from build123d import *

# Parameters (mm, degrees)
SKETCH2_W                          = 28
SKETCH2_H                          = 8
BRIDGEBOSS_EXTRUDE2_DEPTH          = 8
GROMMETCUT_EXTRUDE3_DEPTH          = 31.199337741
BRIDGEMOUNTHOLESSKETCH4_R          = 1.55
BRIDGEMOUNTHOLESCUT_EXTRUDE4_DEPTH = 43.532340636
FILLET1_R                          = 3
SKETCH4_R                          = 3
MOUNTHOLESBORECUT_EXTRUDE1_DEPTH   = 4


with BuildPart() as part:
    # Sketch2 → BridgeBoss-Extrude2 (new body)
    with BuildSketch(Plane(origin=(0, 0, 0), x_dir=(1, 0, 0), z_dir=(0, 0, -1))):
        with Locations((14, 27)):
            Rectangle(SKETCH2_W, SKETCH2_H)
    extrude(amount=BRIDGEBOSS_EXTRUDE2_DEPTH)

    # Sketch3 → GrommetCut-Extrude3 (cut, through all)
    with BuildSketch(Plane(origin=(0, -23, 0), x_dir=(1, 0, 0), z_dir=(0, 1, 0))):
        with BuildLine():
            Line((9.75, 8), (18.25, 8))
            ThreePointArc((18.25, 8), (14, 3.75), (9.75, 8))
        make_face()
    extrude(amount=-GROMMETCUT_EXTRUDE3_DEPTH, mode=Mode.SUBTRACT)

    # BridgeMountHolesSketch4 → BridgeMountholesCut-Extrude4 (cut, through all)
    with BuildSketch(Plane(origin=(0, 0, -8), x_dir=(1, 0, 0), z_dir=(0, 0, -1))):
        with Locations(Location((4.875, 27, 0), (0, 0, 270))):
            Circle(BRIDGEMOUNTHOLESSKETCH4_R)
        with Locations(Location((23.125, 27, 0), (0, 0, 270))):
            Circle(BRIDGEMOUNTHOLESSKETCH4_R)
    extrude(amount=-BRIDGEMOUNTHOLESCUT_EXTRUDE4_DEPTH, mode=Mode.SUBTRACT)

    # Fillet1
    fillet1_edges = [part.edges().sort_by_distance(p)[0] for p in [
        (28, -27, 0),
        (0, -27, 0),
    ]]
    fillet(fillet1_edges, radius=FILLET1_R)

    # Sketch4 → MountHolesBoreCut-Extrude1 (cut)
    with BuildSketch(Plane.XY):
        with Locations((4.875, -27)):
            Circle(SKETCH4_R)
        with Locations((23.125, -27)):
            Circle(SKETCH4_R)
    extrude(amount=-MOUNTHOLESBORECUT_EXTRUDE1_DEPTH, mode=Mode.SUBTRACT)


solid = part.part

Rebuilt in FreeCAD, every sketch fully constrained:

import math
import FreeCAD as App
import Part
import Sketcher
from FreeCAD import Vector


def edges_at(feature, points):
    """Names of the edges that pass closest to the given points."""
    edges = feature.Shape.Edges
    near = lambda p: min(range(len(edges)), key=lambda i: edges[i].distToShape(Part.Vertex(*p))[0])
    return sorted({f"Edge{near(p) + 1}" for p in points})


def add_polygon(sketch, points):
    """Adds a closed chain of lines whose ends are joined by coincident constraints."""
    first, n = sketch.GeometryCount, len(points)
    for a, b in zip(points, points[1:] + points[:1]):
        sketch.addGeometry(Part.LineSegment(App.Vector(*a, 0), App.Vector(*b, 0)), False)
    for i in range(n):
        sketch.addConstraint(Sketcher.Constraint("Coincident", first + i, 2, first + (i + 1) % n, 1))

doc = App.newDocument("Part")
params = doc.addObject("Spreadsheet::Sheet", "Params")
for row, (alias, value) in enumerate([
    ("sketch1_width", "28 mm"),
    ("sketch1_height", "8 mm"),
    ("pad1_length", "8 mm"),
    ("sketch2_radius", "4.25 mm"),
    ("sketch3_diameter", "3.1 mm"),
    ("fillet_radius", "3 mm"),
    ("sketch4_diameter", "6 mm"),
    ("pocket3_length", "4 mm"),
], start=1):
    params.set(f"A{row}", alias)
    params.set(f"B{row}", "=" + value)
    params.setAlias(f"B{row}", alias)

body = doc.addObject("PartDesign::Body", "Body")

sketch1 = doc.addObject("Sketcher::SketchObject", "Sketch")
body.addObject(sketch1)
sketch1.AttachmentSupport = (doc.XY_Plane, [""])
sketch1.MapMode = "FlatFace"
add_polygon(sketch1, [(0, -31), (0, -23), (28, -23), (28, -31)])
sketch1.addConstraint(Sketcher.Constraint("Vertical", 0))
sketch1.addConstraint(Sketcher.Constraint("Horizontal", 1))
sketch1.addConstraint(Sketcher.Constraint("Vertical", 2))
sketch1.addConstraint(Sketcher.Constraint("Horizontal", 3))
sketch1.addConstraint(Sketcher.Constraint("PointOnObject", 0, 2, -2))
sketch1.addConstraint(Sketcher.Constraint("DistanceX", 1, 1, 1, 2, 28.0))
sketch1.addConstraint(Sketcher.Constraint("DistanceY", 0, 1, 0, 2, 8.0))
sketch1.addConstraint(Sketcher.Constraint("DistanceY", 0, 2, -1, 1, 23.0))
sketch1.setExpression("Constraints[9]", "Params.sketch1_width")
sketch1.setExpression("Constraints[10]", "Params.sketch1_height")
pad1 = doc.addObject("PartDesign::Pad", "Pad")
body.addObject(pad1)
pad1.Profile = sketch1
pad1.setExpression("Length", "Params.pad1_length")
pad1.Reversed = True

sketch2 = doc.addObject("Sketcher::SketchObject", "Sketch001")
body.addObject(sketch2)
sketch2.AttachmentSupport = (doc.XZ_Plane, [""])
sketch2.MapMode = "FlatFace"
sketch2.AttachmentOffset = App.Placement(Vector(0, 0, 23), App.Rotation())
sketch2.addGeometry(Part.LineSegment(Vector(18.2, -8, 0), Vector(9.8, -8, 0)), False)
sketch2.addGeometry(Part.ArcOfCircle(Part.Circle(Vector(14, -8, 0), Vector(0, 0, 1), 4.2), math.radians(0), math.radians(180)), False)
sketch2.addConstraint(Sketcher.Constraint("Coincident", 0, 1, 1, 1))
sketch2.addConstraint(Sketcher.Constraint("Coincident", 1, 2, 0, 2))
sketch2.addConstraint(Sketcher.Constraint("Horizontal", 0))
sketch2.addConstraint(Sketcher.Constraint("Horizontal", 1, 3, 0, 1))
sketch2.addConstraint(Sketcher.Constraint("Radius", 1, 4.25))
sketch2.addConstraint(Sketcher.Constraint("DistanceX", -1, 1, 1, 3, 14.0))
sketch2.addConstraint(Sketcher.Constraint("DistanceY", 1, 3, -1, 1, 8.0))
sketch2.setExpression("Constraints[4]", "Params.sketch2_radius")
pocket1 = doc.addObject("PartDesign::Pocket", "Pocket")
body.addObject(pocket1)
pocket1.Profile = sketch2
pocket1.Type = "ThroughAll"
pocket1.Reversed = True

sketch3 = doc.addObject("Sketcher::SketchObject", "Sketch002")
body.addObject(sketch3)
sketch3.AttachmentSupport = (doc.XY_Plane, [""])
sketch3.MapMode = "FlatFace"
sketch3.AttachmentOffset = App.Placement(Vector(0, 0, -8), App.Rotation())
sketch3.addGeometry(Part.Circle(Vector(4.9, -27, 0), Vector(0, 0, 1), 1.6), False)
sketch3.addGeometry(Part.Circle(Vector(23.1, -27, 0), Vector(0, 0, 1), 1.6), False)
sketch3.addConstraint(Sketcher.Constraint("Equal", 0, 1))
sketch3.addConstraint(Sketcher.Constraint("Horizontal", 0, 3, 1, 3))
sketch3.addConstraint(Sketcher.Constraint("Diameter", 0, 3.1))
sketch3.addConstraint(Sketcher.Constraint("DistanceY", 0, 3, -1, 1, 27.0))
sketch3.addConstraint(Sketcher.Constraint("DistanceX", 0, 3, 1, 3, 18.25))
sketch3.addConstraint(Sketcher.Constraint("DistanceX", -1, 1, 0, 3, 4.875))
sketch3.setExpression("Constraints[2]", "Params.sketch3_diameter")
pocket2 = doc.addObject("PartDesign::Pocket", "Pocket001")
body.addObject(pocket2)
pocket2.Profile = sketch3
pocket2.Type = "ThroughAll"
pocket2.Reversed = True
doc.recompute()

fillet = doc.addObject("PartDesign::Fillet", "Fillet")
body.addObject(fillet)
fillet.Base = (pocket2, edges_at(pocket2, [(28, -27, 0), (0, -27, 0)]))
fillet.setExpression("Radius", "Params.fillet_radius")

sketch4 = doc.addObject("Sketcher::SketchObject", "Sketch003")
body.addObject(sketch4)
sketch4.AttachmentSupport = (doc.XY_Plane, [""])
sketch4.MapMode = "FlatFace"
sketch4.addGeometry(Part.Circle(Vector(4.9, -27, 0), Vector(0, 0, 1), 3), False)
sketch4.addGeometry(Part.Circle(Vector(23.1, -27, 0), Vector(0, 0, 1), 3), False)
sketch4.addConstraint(Sketcher.Constraint("Equal", 0, 1))
sketch4.addConstraint(Sketcher.Constraint("Horizontal", 0, 3, 1, 3))
sketch4.addConstraint(Sketcher.Constraint("Diameter", 0, 6.0))
sketch4.addConstraint(Sketcher.Constraint("DistanceY", 0, 3, -1, 1, 27.0))
sketch4.addConstraint(Sketcher.Constraint("DistanceX", 0, 3, 1, 3, 18.25))
sketch4.addConstraint(Sketcher.Constraint("DistanceX", -1, 1, 0, 3, 4.875))
sketch4.setExpression("Constraints[2]", "Params.sketch4_diameter")
pocket3 = doc.addObject("PartDesign::Pocket", "Pocket002")
body.addObject(pocket3)
pocket3.Profile = sketch4
pocket3.setExpression("Length", "Params.pocket3_length")

doc.recompute()
